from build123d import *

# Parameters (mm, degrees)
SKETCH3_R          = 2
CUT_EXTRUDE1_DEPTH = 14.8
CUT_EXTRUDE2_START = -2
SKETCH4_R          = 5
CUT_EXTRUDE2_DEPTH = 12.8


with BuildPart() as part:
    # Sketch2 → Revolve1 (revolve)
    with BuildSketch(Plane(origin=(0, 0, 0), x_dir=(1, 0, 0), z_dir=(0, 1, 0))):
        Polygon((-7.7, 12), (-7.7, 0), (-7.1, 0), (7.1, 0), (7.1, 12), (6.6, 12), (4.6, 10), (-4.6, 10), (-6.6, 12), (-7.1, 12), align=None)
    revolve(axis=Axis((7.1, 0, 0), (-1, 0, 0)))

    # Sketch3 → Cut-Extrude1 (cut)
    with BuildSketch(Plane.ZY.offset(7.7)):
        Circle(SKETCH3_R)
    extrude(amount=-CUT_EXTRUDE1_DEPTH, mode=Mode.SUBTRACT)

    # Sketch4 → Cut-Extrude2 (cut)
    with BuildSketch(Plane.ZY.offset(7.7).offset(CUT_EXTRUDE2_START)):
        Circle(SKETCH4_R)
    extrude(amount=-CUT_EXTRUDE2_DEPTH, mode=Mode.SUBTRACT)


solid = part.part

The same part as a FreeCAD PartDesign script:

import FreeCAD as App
import Part
import Sketcher
from FreeCAD import Vector
Q = App.Units.Quantity

doc = App.newDocument("Part")
body = doc.addObject("PartDesign::Body", "Body")

# Sketch on XZ plane
sketch1 = body.newObject("Sketcher::SketchObject", "Sketch")
sketch1.AttachmentSupport = (doc.getObject("XZ_Plane"), [""])
sketch1.MapMode = "FlatFace"
sketch1.addGeometry(Part.LineSegment(Vector(-7.7, -12, 0), Vector(-7.7, 0, 0)), False)
sketch1.addGeometry(Part.LineSegment(Vector(-7.7, 0, 0), Vector(7.1, 0, 0)), False)
sketch1.addGeometry(Part.LineSegment(Vector(7.1, 0, 0), Vector(7.1, -12, 0)), False)
sketch1.addGeometry(Part.LineSegment(Vector(7.1, -12, 0), Vector(6.6, -12, 0)), False)
sketch1.addGeometry(Part.LineSegment(Vector(6.6, -12, 0), Vector(4.6, -10, 0)), False)
sketch1.addGeometry(Part.LineSegment(Vector(4.6, -10, 0), Vector(-4.6, -10, 0)), False)
sketch1.addGeometry(Part.LineSegment(Vector(-4.6, -10, 0), Vector(-6.6, -12, 0)), False)
sketch1.addGeometry(Part.LineSegment(Vector(-6.6, -12, 0), Vector(-7.7, -12, 0)), False)
sketch1.addConstraint(Sketcher.Constraint("Coincident", 0, 2, 1, 1))
sketch1.addConstraint(Sketcher.Constraint("Coincident", 1, 2, 2, 1))
sketch1.addConstraint(Sketcher.Constraint("Coincident", 2, 2, 3, 1))
sketch1.addConstraint(Sketcher.Constraint("Coincident", 3, 2, 4, 1))
sketch1.addConstraint(Sketcher.Constraint("Coincident", 4, 2, 5, 1))
sketch1.addConstraint(Sketcher.Constraint("Coincident", 5, 2, 6, 1))
sketch1.addConstraint(Sketcher.Constraint("Coincident", 6, 2, 7, 1))
sketch1.addConstraint(Sketcher.Constraint("Coincident", 7, 2, 0, 1))
sketch1.addConstraint(Sketcher.Constraint("Vertical", 0))
sketch1.addConstraint(Sketcher.Constraint("Horizontal", 1))
sketch1.addConstraint(Sketcher.Constraint("Vertical", 2))
sketch1.addConstraint(Sketcher.Constraint("Horizontal", 3))
sketch1.addConstraint(Sketcher.Constraint("Horizontal", 5))
sketch1.addConstraint(Sketcher.Constraint("Horizontal", 7))
sketch1.addConstraint(Sketcher.Constraint("Symmetric", 3, 2, 6, 2, -2))
sketch1.addConstraint(Sketcher.Constraint("PointOnObject", 0, 2, -1))
sketch1.addConstraint(Sketcher.Constraint("Perpendicular", 4, 6))
sketch1.addConstraint(Sketcher.Constraint("Equal", 4, 6))
sketch1.addConstraint(Sketcher.Constraint("DistanceY", 0, 1, 0, 2, Q("12 mm")))
sketch1.addConstraint(Sketcher.Constraint("DistanceX", 1, 1, 1, 2, Q("14.8 mm")))
sketch1.addConstraint(Sketcher.Constraint("DistanceX", 3, 2, 3, 1, Q("0.5 mm")))
sketch1.addConstraint(Sketcher.Constraint("DistanceX", 5, 2, 5, 1, Q("9.2 mm")))
sketch1.addConstraint(Sketcher.Constraint("DistanceX", 7, 2, 7, 1, Q("1.1 mm")))
revolution = body.newObject("PartDesign::Revolution", "Revolution")
revolution.Profile = sketch1
revolution.ReferenceAxis = (sketch1, ["H_Axis"])
revolution.Angle = 360

# Sketch on YZ plane
sketch2 = body.newObject("Sketcher::SketchObject", "Sketch001")
sketch2.AttachmentSupport = (doc.getObject("YZ_Plane"), [""])
sketch2.MapMode = "FlatFace"
sketch2.AttachmentOffset = App.Placement(Vector(0, 0, -7.7), App.Rotation())
sketch2.addGeometry(Part.Circle(Vector(0, 0, 0), Vector(0, 0, 1), 2), False)
sketch2.addConstraint(Sketcher.Constraint("Coincident", 0, 3, -1, 1))
sketch2.addConstraint(Sketcher.Constraint("Diameter", 0, Q("4 mm")))
pocket1 = body.newObject("PartDesign::Pocket", "Pocket")
pocket1.Profile = sketch2
pocket1.Length = 14.8
pocket1.Reversed = True

# Sketch on YZ plane
sketch3 = body.newObject("Sketcher::SketchObject", "Sketch002")
sketch3.AttachmentSupport = (doc.getObject("YZ_Plane"), [""])
sketch3.MapMode = "FlatFace"
sketch3.AttachmentOffset = App.Placement(Vector(0, 0, -5.7), App.Rotation())
sketch3.addGeometry(Part.Circle(Vector(0, 0, 0), Vector(0, 0, 1), 5), False)
sketch3.addConstraint(Sketcher.Constraint("Coincident", 0, 3, -1, 1))
sketch3.addConstraint(Sketcher.Constraint("Diameter", 0, Q("10 mm")))
pocket2 = body.newObject("PartDesign::Pocket", "Pocket001")
pocket2.Profile = sketch3
pocket2.Length = 12.8
pocket2.Reversed = True

doc.recompute()
